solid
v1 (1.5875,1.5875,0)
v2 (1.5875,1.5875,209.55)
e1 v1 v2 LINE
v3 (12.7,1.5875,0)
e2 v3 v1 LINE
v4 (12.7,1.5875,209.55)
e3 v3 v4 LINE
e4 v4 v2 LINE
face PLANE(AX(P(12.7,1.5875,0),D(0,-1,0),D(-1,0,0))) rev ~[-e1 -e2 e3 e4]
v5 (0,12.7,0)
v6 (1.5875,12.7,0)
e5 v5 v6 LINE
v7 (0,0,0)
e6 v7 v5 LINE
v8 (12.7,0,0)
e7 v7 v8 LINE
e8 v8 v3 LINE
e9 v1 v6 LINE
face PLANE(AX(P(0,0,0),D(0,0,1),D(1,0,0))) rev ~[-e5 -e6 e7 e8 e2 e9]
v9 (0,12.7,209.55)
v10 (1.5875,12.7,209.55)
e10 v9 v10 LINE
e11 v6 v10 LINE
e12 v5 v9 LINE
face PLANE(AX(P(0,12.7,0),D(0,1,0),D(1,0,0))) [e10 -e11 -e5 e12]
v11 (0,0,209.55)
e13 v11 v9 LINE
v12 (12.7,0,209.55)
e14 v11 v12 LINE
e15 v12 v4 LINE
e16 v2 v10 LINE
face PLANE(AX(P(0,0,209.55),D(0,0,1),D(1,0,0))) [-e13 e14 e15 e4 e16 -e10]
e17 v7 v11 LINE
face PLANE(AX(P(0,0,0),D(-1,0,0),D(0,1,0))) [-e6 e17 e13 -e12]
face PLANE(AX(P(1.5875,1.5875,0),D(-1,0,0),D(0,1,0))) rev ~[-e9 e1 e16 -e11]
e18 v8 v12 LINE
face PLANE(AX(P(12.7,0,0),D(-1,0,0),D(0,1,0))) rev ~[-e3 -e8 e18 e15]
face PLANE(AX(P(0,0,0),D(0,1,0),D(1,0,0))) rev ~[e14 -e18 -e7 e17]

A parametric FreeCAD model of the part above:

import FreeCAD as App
import Part
import Sketcher
Q = App.Units.Quantity

doc = App.newDocument("Part")
params = doc.addObject("Spreadsheet::Sheet", "Params")
for row, (alias, value) in enumerate([
    ("sketch1_width", "0.5 in"),
    ("sketch1_width2", "0.0625 in"),
    ("pad1_length", "8.25 in"),
], start=1):
    params.set(f"A{row}", alias)
    params.set(f"B{row}", "=" + value)
    params.setAlias(f"B{row}", alias)

body = doc.addObject("PartDesign::Body", "Body")

# Sketch on XY plane
sketch1 = body.newObject("Sketcher::SketchObject", "Sketch")
sketch1.AttachmentSupport = (doc.getObject("XY_Plane"), [""])
sketch1.MapMode = "FlatFace"
sketch1.addGeometry([
    Part.LineSegment(App.Vector(0, 12.7, 0), App.Vector(0, 0, 0)),  # 0
    Part.LineSegment(App.Vector(0, 0, 0), App.Vector(12.7, 0, 0)),  # 1
    Part.LineSegment(App.Vector(12.7, 0, 0), App.Vector(12.7, 1.6, 0)),  # 2
    Part.LineSegment(App.Vector(12.7, 1.6, 0), App.Vector(1.6, 1.6, 0)),  # 3
    Part.LineSegment(App.Vector(1.6, 1.6, 0), App.Vector(1.6, 12.7, 0)),  # 4
    Part.LineSegment(App.Vector(1.6, 12.7, 0), App.Vector(0, 12.7, 0)),  # 5
], False)
sketch1.addConstraint([
    Sketcher.Constraint("Coincident", 0, 2, 1, 1),
    Sketcher.Constraint("Coincident", 1, 2, 2, 1),
    Sketcher.Constraint("Coincident", 2, 2, 3, 1),
    Sketcher.Constraint("Coincident", 3, 2, 4, 1),
    Sketcher.Constraint("Coincident", 4, 2, 5, 1),
    Sketcher.Constraint("Coincident", 5, 2, 0, 1),
    Sketcher.Constraint("Vertical", 0),
    Sketcher.Constraint("Horizontal", 1),
    Sketcher.Constraint("Vertical", 2),
    Sketcher.Constraint("Horizontal", 3),
    Sketcher.Constraint("Vertical", 4),
    Sketcher.Constraint("Horizontal", 5),
    Sketcher.Constraint("Coincident", 0, 2, -1, 1),
    Sketcher.Constraint("Equal", 1, 0),
    Sketcher.Constraint("Equal", 5, 2),
    Sketcher.Constraint("DistanceX", 1, 1, 1, 2, Q("0.5 in")),
    Sketcher.Constraint("DistanceX", 5, 2, 5, 1, Q("0.0625 in")),
])
sketch1.setExpression("Constraints[15]", "Params.sketch1_width")
sketch1.setExpression("Constraints[16]", "Params.sketch1_width2")
pad1 = body.newObject("PartDesign::Pad", "Pad")
pad1.Profile = sketch1
pad1.setExpression("Length", "Params.pad1_length")

doc.recompute()
